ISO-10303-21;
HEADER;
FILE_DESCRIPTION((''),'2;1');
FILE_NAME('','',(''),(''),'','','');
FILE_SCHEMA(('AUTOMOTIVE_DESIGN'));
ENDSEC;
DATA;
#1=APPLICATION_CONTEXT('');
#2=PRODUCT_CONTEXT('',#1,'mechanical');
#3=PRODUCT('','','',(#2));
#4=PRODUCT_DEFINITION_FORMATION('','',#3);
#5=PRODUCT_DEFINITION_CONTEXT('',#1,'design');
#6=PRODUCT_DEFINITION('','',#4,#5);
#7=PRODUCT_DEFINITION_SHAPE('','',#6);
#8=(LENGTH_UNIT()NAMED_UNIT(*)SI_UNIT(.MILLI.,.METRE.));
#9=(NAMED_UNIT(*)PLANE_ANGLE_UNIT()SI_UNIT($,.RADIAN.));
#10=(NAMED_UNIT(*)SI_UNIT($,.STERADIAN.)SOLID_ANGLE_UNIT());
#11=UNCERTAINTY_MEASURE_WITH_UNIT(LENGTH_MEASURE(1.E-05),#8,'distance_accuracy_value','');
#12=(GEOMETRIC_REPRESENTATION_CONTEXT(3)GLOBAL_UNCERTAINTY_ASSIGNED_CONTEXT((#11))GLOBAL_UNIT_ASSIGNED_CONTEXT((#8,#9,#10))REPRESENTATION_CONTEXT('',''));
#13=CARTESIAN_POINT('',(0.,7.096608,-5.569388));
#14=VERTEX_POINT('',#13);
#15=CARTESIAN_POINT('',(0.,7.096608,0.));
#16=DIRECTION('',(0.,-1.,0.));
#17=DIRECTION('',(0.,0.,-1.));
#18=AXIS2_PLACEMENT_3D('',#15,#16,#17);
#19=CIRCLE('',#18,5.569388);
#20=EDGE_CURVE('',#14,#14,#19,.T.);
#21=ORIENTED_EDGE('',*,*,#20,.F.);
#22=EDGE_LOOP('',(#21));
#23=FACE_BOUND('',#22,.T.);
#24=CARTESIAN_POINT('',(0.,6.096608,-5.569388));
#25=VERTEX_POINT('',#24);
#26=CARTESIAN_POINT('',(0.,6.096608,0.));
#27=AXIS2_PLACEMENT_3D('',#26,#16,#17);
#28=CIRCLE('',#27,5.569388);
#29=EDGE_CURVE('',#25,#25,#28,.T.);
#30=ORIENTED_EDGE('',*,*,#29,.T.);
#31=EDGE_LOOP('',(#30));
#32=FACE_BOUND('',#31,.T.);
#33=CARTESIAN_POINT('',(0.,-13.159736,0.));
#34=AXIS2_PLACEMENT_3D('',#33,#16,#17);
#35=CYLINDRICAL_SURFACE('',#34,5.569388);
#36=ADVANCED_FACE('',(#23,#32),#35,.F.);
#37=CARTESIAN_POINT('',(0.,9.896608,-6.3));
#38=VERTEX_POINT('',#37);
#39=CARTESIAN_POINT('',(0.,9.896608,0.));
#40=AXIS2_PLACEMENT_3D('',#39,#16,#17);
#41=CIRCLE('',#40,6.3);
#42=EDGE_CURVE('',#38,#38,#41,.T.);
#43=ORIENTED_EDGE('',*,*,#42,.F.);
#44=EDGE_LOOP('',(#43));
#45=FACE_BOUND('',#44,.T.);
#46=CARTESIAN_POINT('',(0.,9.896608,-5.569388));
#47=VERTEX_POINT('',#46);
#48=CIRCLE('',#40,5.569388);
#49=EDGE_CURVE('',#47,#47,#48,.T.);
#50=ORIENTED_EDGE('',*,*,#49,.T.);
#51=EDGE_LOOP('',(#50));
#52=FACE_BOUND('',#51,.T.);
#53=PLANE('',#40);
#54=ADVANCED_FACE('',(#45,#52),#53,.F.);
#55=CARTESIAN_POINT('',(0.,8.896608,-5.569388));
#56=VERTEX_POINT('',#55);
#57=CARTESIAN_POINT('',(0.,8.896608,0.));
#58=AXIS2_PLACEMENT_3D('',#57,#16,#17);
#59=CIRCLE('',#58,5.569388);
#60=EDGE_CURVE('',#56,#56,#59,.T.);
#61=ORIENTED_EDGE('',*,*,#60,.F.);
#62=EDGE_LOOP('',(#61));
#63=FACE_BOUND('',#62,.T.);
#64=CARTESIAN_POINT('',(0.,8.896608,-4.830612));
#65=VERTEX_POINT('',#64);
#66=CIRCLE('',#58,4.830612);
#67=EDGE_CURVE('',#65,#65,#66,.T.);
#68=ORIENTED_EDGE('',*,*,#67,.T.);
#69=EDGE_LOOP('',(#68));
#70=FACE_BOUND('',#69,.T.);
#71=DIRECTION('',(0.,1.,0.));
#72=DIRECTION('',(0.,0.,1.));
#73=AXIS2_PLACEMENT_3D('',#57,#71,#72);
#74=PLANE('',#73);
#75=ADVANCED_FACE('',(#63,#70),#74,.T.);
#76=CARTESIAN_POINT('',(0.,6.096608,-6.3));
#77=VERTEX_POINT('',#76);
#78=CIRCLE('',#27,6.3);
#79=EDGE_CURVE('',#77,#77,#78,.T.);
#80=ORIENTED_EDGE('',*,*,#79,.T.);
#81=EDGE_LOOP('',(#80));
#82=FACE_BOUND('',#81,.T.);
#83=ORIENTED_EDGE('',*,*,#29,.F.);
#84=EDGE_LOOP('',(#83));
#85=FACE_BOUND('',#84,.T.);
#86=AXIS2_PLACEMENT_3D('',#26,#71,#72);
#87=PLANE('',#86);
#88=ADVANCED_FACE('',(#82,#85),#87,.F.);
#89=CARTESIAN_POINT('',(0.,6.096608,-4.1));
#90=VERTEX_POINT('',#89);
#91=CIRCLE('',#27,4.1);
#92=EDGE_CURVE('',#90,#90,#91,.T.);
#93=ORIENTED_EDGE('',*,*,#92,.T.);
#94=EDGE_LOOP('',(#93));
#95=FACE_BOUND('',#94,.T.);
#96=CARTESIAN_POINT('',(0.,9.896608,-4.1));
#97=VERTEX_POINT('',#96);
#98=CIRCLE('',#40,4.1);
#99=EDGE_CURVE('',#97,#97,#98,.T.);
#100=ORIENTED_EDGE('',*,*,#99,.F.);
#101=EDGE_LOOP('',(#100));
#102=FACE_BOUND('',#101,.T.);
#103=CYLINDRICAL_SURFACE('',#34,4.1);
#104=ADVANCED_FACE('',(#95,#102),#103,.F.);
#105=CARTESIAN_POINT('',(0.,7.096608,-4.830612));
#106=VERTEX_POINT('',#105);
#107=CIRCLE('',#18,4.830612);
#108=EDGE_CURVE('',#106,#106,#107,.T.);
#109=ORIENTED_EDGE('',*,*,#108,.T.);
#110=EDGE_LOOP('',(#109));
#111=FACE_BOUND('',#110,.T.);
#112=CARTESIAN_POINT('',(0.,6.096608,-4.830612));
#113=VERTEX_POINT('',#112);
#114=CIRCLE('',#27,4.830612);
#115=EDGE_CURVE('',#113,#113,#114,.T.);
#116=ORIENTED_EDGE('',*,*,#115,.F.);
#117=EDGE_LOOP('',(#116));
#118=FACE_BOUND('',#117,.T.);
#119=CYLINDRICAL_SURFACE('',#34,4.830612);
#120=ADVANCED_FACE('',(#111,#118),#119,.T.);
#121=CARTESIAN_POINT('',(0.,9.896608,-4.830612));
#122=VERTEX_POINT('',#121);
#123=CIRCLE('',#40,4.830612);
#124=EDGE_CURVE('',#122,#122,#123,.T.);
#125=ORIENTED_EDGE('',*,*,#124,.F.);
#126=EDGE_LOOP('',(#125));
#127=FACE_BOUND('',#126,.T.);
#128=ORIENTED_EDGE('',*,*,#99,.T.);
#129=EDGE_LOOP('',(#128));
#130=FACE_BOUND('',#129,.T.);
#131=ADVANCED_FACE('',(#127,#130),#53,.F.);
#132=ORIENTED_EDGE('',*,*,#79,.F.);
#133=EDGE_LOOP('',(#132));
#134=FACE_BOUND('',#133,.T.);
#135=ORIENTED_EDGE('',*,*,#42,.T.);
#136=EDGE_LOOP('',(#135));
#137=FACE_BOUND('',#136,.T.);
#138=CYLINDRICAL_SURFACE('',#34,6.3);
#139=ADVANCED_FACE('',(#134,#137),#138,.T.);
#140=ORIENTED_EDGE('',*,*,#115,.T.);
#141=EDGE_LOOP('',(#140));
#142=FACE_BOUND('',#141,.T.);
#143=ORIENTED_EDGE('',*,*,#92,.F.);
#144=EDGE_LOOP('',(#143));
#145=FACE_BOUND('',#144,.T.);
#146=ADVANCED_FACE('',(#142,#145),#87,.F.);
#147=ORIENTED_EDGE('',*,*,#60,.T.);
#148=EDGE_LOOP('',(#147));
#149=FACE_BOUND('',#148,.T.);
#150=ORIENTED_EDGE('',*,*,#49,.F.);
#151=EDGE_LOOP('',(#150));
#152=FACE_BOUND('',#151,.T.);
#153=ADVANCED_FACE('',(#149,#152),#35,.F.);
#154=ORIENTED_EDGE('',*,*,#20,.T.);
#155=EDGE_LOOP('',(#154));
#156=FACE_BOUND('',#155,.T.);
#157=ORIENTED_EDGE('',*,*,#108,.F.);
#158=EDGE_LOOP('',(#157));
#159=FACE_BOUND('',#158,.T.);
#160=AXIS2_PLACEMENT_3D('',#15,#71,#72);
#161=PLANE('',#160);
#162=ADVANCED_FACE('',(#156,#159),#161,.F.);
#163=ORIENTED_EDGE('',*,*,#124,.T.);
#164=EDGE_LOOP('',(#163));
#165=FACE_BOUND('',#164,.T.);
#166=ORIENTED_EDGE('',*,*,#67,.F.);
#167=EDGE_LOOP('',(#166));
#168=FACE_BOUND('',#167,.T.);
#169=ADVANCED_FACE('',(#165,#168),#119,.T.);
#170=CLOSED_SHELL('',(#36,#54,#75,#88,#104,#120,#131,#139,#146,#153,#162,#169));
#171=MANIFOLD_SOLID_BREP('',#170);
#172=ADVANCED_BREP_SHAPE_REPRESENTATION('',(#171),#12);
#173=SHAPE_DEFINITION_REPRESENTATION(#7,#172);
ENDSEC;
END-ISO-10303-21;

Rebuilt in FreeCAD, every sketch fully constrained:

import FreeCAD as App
import Part
import Sketcher
from FreeCAD import Vector

doc = App.newDocument("Part")
params = doc.addObject("Spreadsheet::Sheet", "Params")
for row, (alias, value) in enumerate([
    ("sketch1_height", "1 mm"),
    ("sketch1_height2", "3.8 mm"),
    ("revolution_angle", "360 deg"),
], start=1):
    params.set(f"A{row}", alias)
    params.set(f"B{row}", "=" + value)
    params.setAlias(f"B{row}", alias)

body = doc.addObject("PartDesign::Body", "Body")

sketch1 = body.newObject("Sketcher::SketchObject", "Sketch")
sketch1.AttachmentSupport = (doc.getObject("XY_Plane"), [""])
sketch1.MapMode = "FlatFace"
sketch1.addGeometry([
    Part.LineSegment(Vector(5.6, 6.1, 0), Vector(6.3, 6.1, 0)),
    Part.LineSegment(Vector(6.3, 6.1, 0), Vector(6.3, 9.9, 0)),
    Part.LineSegment(Vector(6.3, 9.9, 0), Vector(5.6, 9.9, 0)),
    Part.LineSegment(Vector(5.6, 9.9, 0), Vector(5.6, 8.9, 0)),
    Part.LineSegment(Vector(5.6, 8.9, 0), Vector(4.8, 8.9, 0)),
    Part.LineSegment(Vector(4.8, 8.9, 0), Vector(4.8, 9.9, 0)),
    Part.LineSegment(Vector(4.8, 9.9, 0), Vector(4.1, 9.9, 0)),
    Part.LineSegment(Vector(4.1, 9.9, 0), Vector(4.1, 6.1, 0)),
    Part.LineSegment(Vector(4.1, 6.1, 0), Vector(4.8, 6.1, 0)),
    Part.LineSegment(Vector(4.8, 6.1, 0), Vector(4.8, 7.1, 0)),
    Part.LineSegment(Vector(4.8, 7.1, 0), Vector(5.6, 7.1, 0)),
    Part.LineSegment(Vector(5.6, 7.1, 0), Vector(5.6, 6.1, 0)),
], False)
sketch1.addConstraint([
    Sketcher.Constraint("Coincident", 0, 2, 1, 1),
    Sketcher.Constraint("Coincident", 1, 2, 2, 1),
    Sketcher.Constraint("Coincident", 2, 2, 3, 1),
    Sketcher.Constraint("Coincident", 3, 2, 4, 1),
    Sketcher.Constraint("Coincident", 4, 2, 5, 1),
    Sketcher.Constraint("Coincident", 5, 2, 6, 1),
    Sketcher.Constraint("Coincident", 6, 2, 7, 1),
    Sketcher.Constraint("Coincident", 7, 2, 8, 1),
    Sketcher.Constraint("Coincident", 8, 2, 9, 1),
    Sketcher.Constraint("Coincident", 9, 2, 10, 1),
    Sketcher.Constraint("Coincident", 10, 2, 11, 1),
    Sketcher.Constraint("Coincident", 11, 2, 0, 1),
    Sketcher.Constraint("Horizontal", 0),
    Sketcher.Constraint("Vertical", 1),
    Sketcher.Constraint("Horizontal", 2),
    Sketcher.Constraint("Vertical", 3),
    Sketcher.Constraint("Horizontal", 4),
    Sketcher.Constraint("Vertical", 5),
    Sketcher.Constraint("Horizontal", 6),
    Sketcher.Constraint("Vertical", 7),
    Sketcher.Constraint("Horizontal", 8),
    Sketcher.Constraint("Vertical", 9),
    Sketcher.Constraint("Horizontal", 10),
    Sketcher.Constraint("Vertical", 11),
    Sketcher.Constraint("Horizontal", 2, 2, 5, 2),
    Sketcher.Constraint("Horizontal", 0, 2, 7, 2),
    Sketcher.Constraint("Vertical", 5, 2, 8, 2),
    Sketcher.Constraint("Vertical", 3, 2, 10, 2),
    Sketcher.Constraint("Equal", 2, 6),
    Sketcher.Constraint("Equal", 5, 9),
    Sketcher.Constraint("DistanceY", 3, 2, 3, 1, 1.0),
    Sketcher.Constraint("DistanceY", 1, 1, 1, 2, 3.8),
    Sketcher.Constraint("DistanceX", -1, 1, 0, 2, 6.3),
    Sketcher.Constraint("DistanceX", -1, 1, 6, 2, 4.1),
    Sketcher.Constraint("DistanceX", 0, 1, 0, 2, 0.730612),
    Sketcher.Constraint("DistanceY", -1, 1, 0, 2, 6.096608),
])
sketch1.setExpression("Constraints[30]", "Params.sketch1_height")
sketch1.setExpression("Constraints[31]", "Params.sketch1_height2")
revolution = body.newObject("PartDesign::Revolution", "Revolution")
revolution.Profile = sketch1
revolution.ReferenceAxis = (sketch1, ["V_Axis"])
revolution.setExpression("Angle", "Params.revolution_angle")

doc.recompute()
